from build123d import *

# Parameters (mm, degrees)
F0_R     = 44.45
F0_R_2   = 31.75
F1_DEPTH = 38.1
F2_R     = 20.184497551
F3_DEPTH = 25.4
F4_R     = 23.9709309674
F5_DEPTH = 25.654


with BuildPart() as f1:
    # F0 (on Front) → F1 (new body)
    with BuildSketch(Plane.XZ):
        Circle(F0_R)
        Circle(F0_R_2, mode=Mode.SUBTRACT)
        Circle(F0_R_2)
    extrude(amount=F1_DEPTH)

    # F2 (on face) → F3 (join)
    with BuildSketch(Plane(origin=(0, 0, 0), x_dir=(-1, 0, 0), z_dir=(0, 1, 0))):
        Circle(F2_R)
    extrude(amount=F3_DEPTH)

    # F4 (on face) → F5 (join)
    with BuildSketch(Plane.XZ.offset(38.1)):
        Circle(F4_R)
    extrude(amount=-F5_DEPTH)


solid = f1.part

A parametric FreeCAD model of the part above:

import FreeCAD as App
import Part
import Sketcher
Q = App.Units.Quantity

doc = App.newDocument("Part")
params = doc.addObject("Spreadsheet::Sheet", "Params")
for row, (alias, value) in enumerate([
    ("sketch1_diameter", "3.5 in"),
    ("pad1_length", "1.5 in"),
    ("pad2_length", "1 in"),
    ("pad3_length", "1.01 in"),
], start=1):
    params.set(f"A{row}", alias)
    params.set(f"B{row}", "=" + value)
    params.setAlias(f"B{row}", alias)

body = doc.addObject("PartDesign::Body", "Body")

sketch1 = body.newObject("Sketcher::SketchObject", "Sketch")
sketch1.AttachmentSupport = (doc.getObject("XZ_Plane"), [""])
sketch1.MapMode = "FlatFace"
sketch1.addGeometry(Part.Circle(App.Vector(0, 0, 0), App.Vector(0, 0, 1), 44), False)
sketch1.addConstraint(Sketcher.Constraint("Coincident", 0, 3, -1, 1))
sketch1.addConstraint(Sketcher.Constraint("Diameter", 0, Q("3.5 in")))
sketch1.setExpression("Constraints[1]", "Params.sketch1_diameter")
pad1 = body.newObject("PartDesign::Pad", "Pad")
pad1.Profile = sketch1
pad1.setExpression("Length", "Params.pad1_length")

sketch2 = body.newObject("Sketcher::SketchObject", "Sketch001")
sketch2.AttachmentSupport = (doc.getObject("XZ_Plane"), [""])
sketch2.MapMode = "FlatFace"
sketch2.addGeometry(Part.Circle(App.Vector(0, 0, 0), App.Vector(0, 0, 1), 20), False)
sketch2.addConstraint(Sketcher.Constraint("Coincident", 0, 3, -1, 1))
sketch2.addConstraint(Sketcher.Constraint("Diameter", 0, Q("40.368995 mm")))
pad2 = body.newObject("PartDesign::Pad", "Pad001")
pad2.Profile = sketch2
pad2.setExpression("Length", "Params.pad2_length")
pad2.Reversed = True

sketch3 = body.newObject("Sketcher::SketchObject", "Sketch002")
sketch3.AttachmentSupport = (doc.getObject("XZ_Plane"), [""])
sketch3.MapMode = "FlatFace"
sketch3.AttachmentOffset = App.Placement(App.Vector(0, 0, 1.5 * 25.4), App.Rotation())
sketch3.addGeometry(Part.Circle(App.Vector(0, 0, 0), App.Vector(0, 0, 1), 24), False)
sketch3.addConstraint(Sketcher.Constraint("Coincident", 0, 3, -1, 1))
sketch3.addConstraint(Sketcher.Constraint("Diameter", 0, Q("47.941862 mm")))
pad3 = body.newObject("PartDesign::Pad", "Pad002")
pad3.Profile = sketch3
pad3.setExpression("Length", "Params.pad3_length")
pad3.Reversed = True

doc.recompute()
